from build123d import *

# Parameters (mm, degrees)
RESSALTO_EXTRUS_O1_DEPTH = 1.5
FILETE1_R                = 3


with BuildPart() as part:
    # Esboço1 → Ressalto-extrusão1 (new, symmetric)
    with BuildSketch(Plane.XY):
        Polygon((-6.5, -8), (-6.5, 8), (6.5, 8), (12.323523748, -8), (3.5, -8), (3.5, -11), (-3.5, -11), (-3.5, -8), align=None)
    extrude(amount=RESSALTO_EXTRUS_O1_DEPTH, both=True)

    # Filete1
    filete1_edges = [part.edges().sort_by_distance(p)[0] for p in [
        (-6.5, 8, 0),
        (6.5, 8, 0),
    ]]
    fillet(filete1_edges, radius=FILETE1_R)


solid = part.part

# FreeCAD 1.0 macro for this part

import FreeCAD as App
import Part
import Sketcher

V = App.Vector
Q = App.Units.Quantity


def edges_at(feature, points):
    """Names of the edges that pass closest to the given points."""
    edges = feature.Shape.Edges
    near = lambda p: min(range(len(edges)), key=lambda i: edges[i].distToShape(Part.Vertex(*p))[0])
    return sorted({f"Edge{near(p) + 1}" for p in points})


def add_polygon(sketch, points):
    """Adds a closed chain of lines whose ends are joined by coincident constraints."""
    first, n = sketch.GeometryCount, len(points)
    for a, b in zip(points, points[1:] + points[:1]):
        sketch.addGeometry(Part.LineSegment(App.Vector(*a, 0), App.Vector(*b, 0)), False)
    for i in range(n):
        sketch.addConstraint(Sketcher.Constraint("Coincident", first + i, 2, first + (i + 1) % n, 1))

doc = App.newDocument("Part")
body = doc.addObject("PartDesign::Body", "Body")

sketch1 = body.newObject("Sketcher::SketchObject", "Sketch")
sketch1.AttachmentSupport = (doc.getObject("XY_Plane"), [""])
sketch1.MapMode = "FlatFace"
add_polygon(sketch1, [(-6.5, 8), (-6.5, -8), (-3.5, -8), (-3.5, -11), (3.5, -11), (3.5, -8), (12.3, -8), (6.5, 8)])
sketch1.addConstraint([
    Sketcher.Constraint("Vertical", 0),
    Sketcher.Constraint("Horizontal", 1),
    Sketcher.Constraint("Vertical", 2),
    Sketcher.Constraint("Horizontal", 3),
    Sketcher.Constraint("Vertical", 4),
    Sketcher.Constraint("Horizontal", 5),
    Sketcher.Constraint("Horizontal", 7),
    Sketcher.Constraint("Symmetric", 0, 2, 6, 2, -1, 1),
    Sketcher.Constraint("Symmetric", 1, 2, 4, 2, -2),
    Sketcher.Constraint("Equal", 1, 2),
    Sketcher.Constraint("DistanceX", 1, 1, 1, 2, Q("3 mm")),
    Sketcher.Constraint("DistanceX", 3, 1, 3, 2, Q("7 mm")),
    Sketcher.Constraint("DistanceY", 0, 2, 0, 1, Q("16 mm")),
    Sketcher.Constraint("Angle", 6, Q("110 deg")),
])
pad1 = body.newObject("PartDesign::Pad", "Pad")
pad1.Profile = sketch1
pad1.Length = 3
pad1.Midplane = True
doc.recompute()

fillet = body.newObject("PartDesign::Fillet", "Fillet")
fillet.Base = (pad1, edges_at(pad1, [(-6.5, 8, 0), (6.5, 8, 0)]))
fillet.Radius = 3

doc.recompute()
